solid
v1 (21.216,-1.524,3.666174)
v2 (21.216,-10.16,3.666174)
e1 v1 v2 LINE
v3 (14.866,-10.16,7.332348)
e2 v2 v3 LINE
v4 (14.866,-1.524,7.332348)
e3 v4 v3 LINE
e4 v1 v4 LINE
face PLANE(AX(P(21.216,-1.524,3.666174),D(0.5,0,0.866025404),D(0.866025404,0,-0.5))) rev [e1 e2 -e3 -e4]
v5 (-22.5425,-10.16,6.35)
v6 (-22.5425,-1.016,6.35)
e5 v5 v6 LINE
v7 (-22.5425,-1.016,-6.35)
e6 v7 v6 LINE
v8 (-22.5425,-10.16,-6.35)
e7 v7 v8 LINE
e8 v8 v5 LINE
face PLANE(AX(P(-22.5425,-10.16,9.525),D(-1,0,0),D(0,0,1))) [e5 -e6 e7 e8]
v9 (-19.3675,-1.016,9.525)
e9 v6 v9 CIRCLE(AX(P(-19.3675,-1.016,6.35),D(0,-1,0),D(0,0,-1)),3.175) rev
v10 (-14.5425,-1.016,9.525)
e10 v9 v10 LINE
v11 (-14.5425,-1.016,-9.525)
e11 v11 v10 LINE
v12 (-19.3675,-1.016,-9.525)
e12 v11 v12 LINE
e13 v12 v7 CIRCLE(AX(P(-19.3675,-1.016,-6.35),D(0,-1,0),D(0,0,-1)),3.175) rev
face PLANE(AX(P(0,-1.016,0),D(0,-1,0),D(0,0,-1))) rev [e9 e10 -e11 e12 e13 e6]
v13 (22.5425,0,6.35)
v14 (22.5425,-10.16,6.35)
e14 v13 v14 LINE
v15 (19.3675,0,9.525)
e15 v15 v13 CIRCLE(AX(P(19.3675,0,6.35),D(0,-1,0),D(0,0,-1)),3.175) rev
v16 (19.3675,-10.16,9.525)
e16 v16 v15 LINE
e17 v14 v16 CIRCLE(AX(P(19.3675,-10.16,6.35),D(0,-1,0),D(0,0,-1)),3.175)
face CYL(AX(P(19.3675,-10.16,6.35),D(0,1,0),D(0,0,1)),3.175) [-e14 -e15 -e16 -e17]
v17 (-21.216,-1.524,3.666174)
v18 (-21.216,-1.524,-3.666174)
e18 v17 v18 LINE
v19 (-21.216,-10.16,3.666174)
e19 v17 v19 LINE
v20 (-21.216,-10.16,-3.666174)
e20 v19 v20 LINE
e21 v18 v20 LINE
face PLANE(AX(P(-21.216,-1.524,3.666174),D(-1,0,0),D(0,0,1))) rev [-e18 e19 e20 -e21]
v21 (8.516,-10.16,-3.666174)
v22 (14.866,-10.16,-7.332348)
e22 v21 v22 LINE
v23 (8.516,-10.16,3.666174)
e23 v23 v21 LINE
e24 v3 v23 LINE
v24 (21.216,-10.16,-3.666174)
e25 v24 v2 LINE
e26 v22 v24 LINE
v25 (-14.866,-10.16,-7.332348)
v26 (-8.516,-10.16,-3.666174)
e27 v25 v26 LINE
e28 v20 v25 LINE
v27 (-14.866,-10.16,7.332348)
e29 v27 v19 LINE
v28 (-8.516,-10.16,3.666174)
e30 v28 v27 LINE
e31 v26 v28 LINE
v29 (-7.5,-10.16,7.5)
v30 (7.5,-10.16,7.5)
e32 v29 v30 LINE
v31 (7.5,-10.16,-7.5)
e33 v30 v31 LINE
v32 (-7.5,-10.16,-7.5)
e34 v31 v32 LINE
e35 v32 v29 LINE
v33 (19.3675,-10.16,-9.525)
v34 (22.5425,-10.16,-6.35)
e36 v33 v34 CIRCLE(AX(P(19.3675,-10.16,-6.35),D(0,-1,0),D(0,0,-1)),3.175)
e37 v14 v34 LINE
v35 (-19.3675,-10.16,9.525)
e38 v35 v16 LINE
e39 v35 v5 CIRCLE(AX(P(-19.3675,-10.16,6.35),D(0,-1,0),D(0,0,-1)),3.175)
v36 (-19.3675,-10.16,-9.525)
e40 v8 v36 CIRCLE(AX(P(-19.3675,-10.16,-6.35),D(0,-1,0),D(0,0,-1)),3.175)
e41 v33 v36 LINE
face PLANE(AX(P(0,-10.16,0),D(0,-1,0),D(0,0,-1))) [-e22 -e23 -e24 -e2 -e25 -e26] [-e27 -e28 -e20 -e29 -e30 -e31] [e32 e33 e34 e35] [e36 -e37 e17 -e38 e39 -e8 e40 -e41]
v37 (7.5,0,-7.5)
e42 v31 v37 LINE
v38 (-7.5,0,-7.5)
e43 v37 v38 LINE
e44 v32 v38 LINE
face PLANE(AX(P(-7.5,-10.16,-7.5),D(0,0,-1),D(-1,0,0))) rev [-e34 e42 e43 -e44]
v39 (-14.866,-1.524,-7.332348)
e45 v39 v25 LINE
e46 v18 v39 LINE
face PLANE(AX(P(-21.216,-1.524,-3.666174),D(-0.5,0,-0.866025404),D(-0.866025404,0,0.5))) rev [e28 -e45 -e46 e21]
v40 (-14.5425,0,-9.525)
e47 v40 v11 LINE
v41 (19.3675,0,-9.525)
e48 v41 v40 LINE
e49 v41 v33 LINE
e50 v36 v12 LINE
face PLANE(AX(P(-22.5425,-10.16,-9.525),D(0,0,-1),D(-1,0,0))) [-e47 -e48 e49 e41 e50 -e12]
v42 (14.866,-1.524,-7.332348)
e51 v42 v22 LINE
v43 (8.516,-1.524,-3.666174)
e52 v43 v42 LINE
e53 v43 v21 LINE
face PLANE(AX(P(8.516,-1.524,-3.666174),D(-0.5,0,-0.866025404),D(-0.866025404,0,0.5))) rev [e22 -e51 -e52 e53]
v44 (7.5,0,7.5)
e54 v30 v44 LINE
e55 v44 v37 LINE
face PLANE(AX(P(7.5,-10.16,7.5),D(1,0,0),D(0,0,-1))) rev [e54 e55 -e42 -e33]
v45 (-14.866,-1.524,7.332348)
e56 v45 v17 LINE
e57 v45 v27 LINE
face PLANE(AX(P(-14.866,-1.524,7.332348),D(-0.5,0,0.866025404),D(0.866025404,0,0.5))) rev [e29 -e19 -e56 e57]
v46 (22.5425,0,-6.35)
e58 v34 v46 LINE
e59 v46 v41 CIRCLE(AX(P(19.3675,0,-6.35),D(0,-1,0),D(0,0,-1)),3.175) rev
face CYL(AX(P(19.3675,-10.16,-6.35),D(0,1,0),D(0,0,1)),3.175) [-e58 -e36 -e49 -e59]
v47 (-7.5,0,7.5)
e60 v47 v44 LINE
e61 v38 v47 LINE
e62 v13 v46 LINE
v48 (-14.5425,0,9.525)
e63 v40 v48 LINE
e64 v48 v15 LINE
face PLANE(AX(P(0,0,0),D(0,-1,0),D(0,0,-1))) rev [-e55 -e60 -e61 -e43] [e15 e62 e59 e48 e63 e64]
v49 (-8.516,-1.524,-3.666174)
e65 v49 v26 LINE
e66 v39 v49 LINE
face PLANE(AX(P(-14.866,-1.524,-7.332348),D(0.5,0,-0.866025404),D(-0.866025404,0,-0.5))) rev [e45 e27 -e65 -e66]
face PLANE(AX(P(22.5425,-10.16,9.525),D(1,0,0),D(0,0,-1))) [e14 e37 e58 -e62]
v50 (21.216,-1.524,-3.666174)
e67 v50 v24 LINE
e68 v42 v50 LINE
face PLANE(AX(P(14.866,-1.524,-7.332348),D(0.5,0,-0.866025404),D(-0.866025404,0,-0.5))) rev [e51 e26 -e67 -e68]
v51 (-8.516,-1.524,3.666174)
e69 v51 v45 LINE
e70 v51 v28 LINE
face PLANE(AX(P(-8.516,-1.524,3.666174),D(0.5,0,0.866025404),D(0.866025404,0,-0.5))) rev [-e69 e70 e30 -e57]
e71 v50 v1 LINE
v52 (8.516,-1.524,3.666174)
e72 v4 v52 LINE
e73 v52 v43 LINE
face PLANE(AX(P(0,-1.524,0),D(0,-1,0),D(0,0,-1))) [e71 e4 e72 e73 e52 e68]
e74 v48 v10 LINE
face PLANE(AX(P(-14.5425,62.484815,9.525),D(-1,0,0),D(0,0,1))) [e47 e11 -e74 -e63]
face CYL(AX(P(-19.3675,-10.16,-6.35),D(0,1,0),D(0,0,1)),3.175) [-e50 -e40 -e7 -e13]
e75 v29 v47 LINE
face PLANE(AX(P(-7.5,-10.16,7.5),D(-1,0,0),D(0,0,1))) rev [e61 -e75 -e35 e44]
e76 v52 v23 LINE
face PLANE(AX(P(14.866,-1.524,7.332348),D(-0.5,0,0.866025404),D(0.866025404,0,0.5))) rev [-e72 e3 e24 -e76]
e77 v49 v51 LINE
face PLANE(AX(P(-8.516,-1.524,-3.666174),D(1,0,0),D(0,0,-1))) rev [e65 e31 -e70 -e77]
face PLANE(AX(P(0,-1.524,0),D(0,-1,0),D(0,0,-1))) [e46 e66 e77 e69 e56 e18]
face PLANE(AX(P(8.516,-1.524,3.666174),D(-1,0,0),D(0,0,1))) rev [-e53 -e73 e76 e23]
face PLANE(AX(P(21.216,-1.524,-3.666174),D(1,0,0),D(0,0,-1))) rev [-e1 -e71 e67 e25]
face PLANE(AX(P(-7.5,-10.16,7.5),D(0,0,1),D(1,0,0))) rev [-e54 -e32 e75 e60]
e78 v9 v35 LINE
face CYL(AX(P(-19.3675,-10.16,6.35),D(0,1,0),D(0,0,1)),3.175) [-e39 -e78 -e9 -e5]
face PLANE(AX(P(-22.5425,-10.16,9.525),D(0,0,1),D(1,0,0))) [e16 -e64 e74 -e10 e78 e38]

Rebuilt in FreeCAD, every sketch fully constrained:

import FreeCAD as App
import Part
import Sketcher
from FreeCAD import Vector
Q = App.Units.Quantity


def edges_at(feature, points):
    """Names of the edges that pass closest to the given points."""
    edges = feature.Shape.Edges
    near = lambda p: min(range(len(edges)), key=lambda i: edges[i].distToShape(Part.Vertex(*p))[0])
    return sorted({f"Edge{near(p) + 1}" for p in points})

doc = App.newDocument("Part")
body = doc.addObject("PartDesign::Body", "Body")

# Sketch on XZ plane
sketch1 = body.newObject("Sketcher::SketchObject", "Sketch")
sketch1.AttachmentSupport = (doc.getObject("XZ_Plane"), [""])
sketch1.MapMode = "FlatFace"
sketch1.addGeometry([
    Part.LineSegment(Vector(-22.5425, -9.525, 0), Vector(-22.5425, 9.525, 0)),
    Part.LineSegment(Vector(-22.5425, 9.525, 0), Vector(22.5425, 9.525, 0)),
    Part.LineSegment(Vector(22.5425, 9.525, 0), Vector(22.5425, -9.525, 0)),
    Part.LineSegment(Vector(22.5425, -9.525, 0), Vector(-22.5425, -9.525, 0)),
], False)
sketch1.addConstraint([
    Sketcher.Constraint("Coincident", 0, 2, 1, 1),
    Sketcher.Constraint("Coincident", 1, 2, 2, 1),
    Sketcher.Constraint("Coincident", 2, 2, 3, 1),
    Sketcher.Constraint("Coincident", 3, 2, 0, 1),
    Sketcher.Constraint("Vertical", 0),
    Sketcher.Constraint("Horizontal", 1),
    Sketcher.Constraint("Vertical", 2),
    Sketcher.Constraint("Horizontal", 3),
    Sketcher.Constraint("Symmetric", 0, 2, 2, 2, -1, 1),
    Sketcher.Constraint("DistanceY", 0, 1, 0, 2, Q("0.75 in")),
    Sketcher.Constraint("DistanceX", 1, 1, 1, 2, Q("1.775 in")),
])
pad1 = body.newObject("PartDesign::Pad", "Pad")
pad1.Profile = sketch1
pad1.Length = Q("0.4 in")

# Sketch on XZ plane
sketch2 = body.newObject("Sketcher::SketchObject", "Sketch001")
sketch2.AttachmentSupport = (doc.getObject("XZ_Plane"), [""])
sketch2.MapMode = "FlatFace"
sketch2.addGeometry([
    Part.LineSegment(Vector(-7.5, -7.5, 0), Vector(-7.5, 7.5, 0)),
    Part.LineSegment(Vector(-7.5, 7.5, 0), Vector(7.5, 7.5, 0)),
    Part.LineSegment(Vector(7.5, 7.5, 0), Vector(7.5, -7.5, 0)),
    Part.LineSegment(Vector(7.5, -7.5, 0), Vector(-7.5, -7.5, 0)),
], False)
sketch2.addConstraint([
    Sketcher.Constraint("Coincident", 0, 2, 1, 1),
    Sketcher.Constraint("Coincident", 1, 2, 2, 1),
    Sketcher.Constraint("Coincident", 2, 2, 3, 1),
    Sketcher.Constraint("Coincident", 3, 2, 0, 1),
    Sketcher.Constraint("Vertical", 0),
    Sketcher.Constraint("Horizontal", 1),
    Sketcher.Constraint("Vertical", 2),
    Sketcher.Constraint("Horizontal", 3),
    Sketcher.Constraint("Symmetric", 0, 2, 2, 2, -1, 1),
    Sketcher.Constraint("Equal", 3, 0),
    Sketcher.Constraint("DistanceX", 1, 1, 1, 2, Q("15 mm")),
])
pocket1 = body.newObject("PartDesign::Pocket", "Pocket")
pocket1.Profile = sketch2
pocket1.Type = "ThroughAll"
pocket1.Reversed = True
doc.recompute()

fillet = body.newObject("PartDesign::Fillet", "Fillet")
fillet.Base = (pocket1, edges_at(pocket1, [
    (22.543, -5.08, 9.525),
    (-22.543, -5.08, 9.525),
    (-22.543, -5.08, -9.525),
    (22.543, -5.08, -9.525),
]))
fillet.Radius = Q("0.125 in")

# Sketch on XZ plane
sketch3 = body.newObject("Sketcher::SketchObject", "Sketch002")
sketch3.AttachmentSupport = (doc.getObject("XZ_Plane"), [""])
sketch3.MapMode = "FlatFace"
sketch3.addGeometry([
    Part.LineSegment(Vector(-14.5425, 102.908445, 0), Vector(-14.5425, -102.908445, 0)),
    Part.LineSegment(Vector(-14.5425, -102.908445, 0), Vector(-201.30939, -102.908445, 0)),
    Part.LineSegment(Vector(-201.30939, -102.908445, 0), Vector(-201.30939, 102.908445, 0)),
    Part.LineSegment(Vector(-201.30939, 102.908445, 0), Vector(-14.5425, 102.908445, 0)),
], False)
sketch3.addConstraint([
    Sketcher.Constraint("Coincident", 0, 2, 1, 1),
    Sketcher.Constraint("Coincident", 1, 2, 2, 1),
    Sketcher.Constraint("Coincident", 2, 2, 3, 1),
    Sketcher.Constraint("Coincident", 3, 2, 0, 1),
    Sketcher.Constraint("Vertical", 0),
    Sketcher.Constraint("Horizontal", 1),
    Sketcher.Constraint("Vertical", 2),
    Sketcher.Constraint("Horizontal", 3),
    Sketcher.Constraint("DistanceX", 1, 2, 1, 1, Q("186.76689 mm")),
    Sketcher.Constraint("DistanceY", 0, 2, 0, 1, Q("205.81689 mm")),
    Sketcher.Constraint("DistanceX", 0, 2, -1, 1, Q("14.5425 mm")),
    Sketcher.Constraint("DistanceY", 0, 2, -1, 1, Q("102.908445 mm")),
])
pocket2 = body.newObject("PartDesign::Pocket", "Pocket001")
pocket2.Profile = sketch3
pocket2.Type = "TwoLengths"
pocket2.Length = 27.497463
pocket2.Length2 = Q("0.04 in")

# Sketch on XZ plane
sketch4 = body.newObject("Sketcher::SketchObject", "Sketch003")
sketch4.AttachmentSupport = (doc.getObject("XZ_Plane"), [""])
sketch4.MapMode = "FlatFace"
sketch4.AttachmentOffset = App.Placement(Vector(0, 0, 0.4 * 25.4), App.Rotation())
sketch4.addGeometry([
    Part.LineSegment(Vector(-21.216, -3.666174, 0), Vector(-14.866, -7.332348, 0)),  # 0
    Part.LineSegment(Vector(-14.866, -7.332348, 0), Vector(-8.516, -3.666174, 0)),  # 1
    Part.LineSegment(Vector(-8.516, -3.666174, 0), Vector(-8.516, 3.666174, 0)),  # 2
    Part.LineSegment(Vector(-8.516, 3.666174, 0), Vector(-14.866, 7.332348, 0)),  # 3
    Part.LineSegment(Vector(-14.866, 7.332348, 0), Vector(-21.216, 3.666174, 0)),  # 4
    Part.LineSegment(Vector(-21.216, 3.666174, 0), Vector(-21.216, -3.666174, 0)),  # 5
    Part.LineSegment(Vector(8.516, -3.666174, 0), Vector(14.866, -7.332348, 0)),  # 6
    Part.LineSegment(Vector(14.866, -7.332348, 0), Vector(21.216, -3.666174, 0)),  # 7
    Part.LineSegment(Vector(21.216, -3.666174, 0), Vector(21.216, 3.666174, 0)),  # 8
    Part.LineSegment(Vector(21.216, 3.666174, 0), Vector(14.866, 7.332348, 0)),  # 9
    Part.LineSegment(Vector(14.866, 7.332348, 0), Vector(8.516, 3.666174, 0)),  # 10
    Part.LineSegment(Vector(8.516, 3.666174, 0), Vector(8.516, -3.666174, 0)),  # 11
], False)
sketch4.addConstraint([
    Sketcher.Constraint("Coincident", 0, 2, 1, 1),
    Sketcher.Constraint("Coincident", 1, 2, 2, 1),
    Sketcher.Constraint("Coincident", 2, 2, 3, 1),
    Sketcher.Constraint("Coincident", 3, 2, 4, 1),
    Sketcher.Constraint("Coincident", 4, 2, 5, 1),
    Sketcher.Constraint("Coincident", 5, 2, 0, 1),
    Sketcher.Constraint("Coincident", 6, 2, 7, 1),
    Sketcher.Constraint("Coincident", 7, 2, 8, 1),
    Sketcher.Constraint("Coincident", 8, 2, 9, 1),
    Sketcher.Constraint("Coincident", 9, 2, 10, 1),
    Sketcher.Constraint("Coincident", 10, 2, 11, 1),
    Sketcher.Constraint("Coincident", 11, 2, 6, 1),
    Sketcher.Constraint("Vertical", 2),
    Sketcher.Constraint("Vertical", 5),
    Sketcher.Constraint("Vertical", 8),
    Sketcher.Constraint("Vertical", 11),
    Sketcher.Constraint("Symmetric", 3, 2, 6, 2, -1, 1),
    Sketcher.Constraint("Symmetric", 4, 2, 7, 2, -1, 1),
    Sketcher.Constraint("Symmetric", 0, 2, 9, 2, -1, 1),
    Sketcher.Constraint("Symmetric", 1, 2, 10, 2, -1, 1),
    Sketcher.Constraint("Symmetric", 0, 2, 6, 2, -2),
    Sketcher.Constraint("Parallel", 0, 3),
    Sketcher.Constraint("Parallel", 1, 4),
    Sketcher.Constraint("Parallel", 3, 6),
    Sketcher.Constraint("Parallel", 6, 9),
    Sketcher.Constraint("Horizontal", 2, 2, 4, 2),
    Sketcher.Constraint("Horizontal", 1, 2, 5, 2),
    Sketcher.Constraint("Angle", 0, Q("-30 deg")),
    Sketcher.Constraint("DistanceX", 4, 2, 2, 2, Q("0.5 in")),
    Sketcher.Constraint("DistanceY", 2, 1, 2, 2, Q("7.332348 mm")),
    Sketcher.Constraint("DistanceX", 0, 2, -1, 1, Q("14.866 mm")),
])
pocket3 = body.newObject("PartDesign::Pocket", "Pocket002")
pocket3.Profile = sketch4
pocket3.Length = Q("0.34 in")

doc.recompute()
